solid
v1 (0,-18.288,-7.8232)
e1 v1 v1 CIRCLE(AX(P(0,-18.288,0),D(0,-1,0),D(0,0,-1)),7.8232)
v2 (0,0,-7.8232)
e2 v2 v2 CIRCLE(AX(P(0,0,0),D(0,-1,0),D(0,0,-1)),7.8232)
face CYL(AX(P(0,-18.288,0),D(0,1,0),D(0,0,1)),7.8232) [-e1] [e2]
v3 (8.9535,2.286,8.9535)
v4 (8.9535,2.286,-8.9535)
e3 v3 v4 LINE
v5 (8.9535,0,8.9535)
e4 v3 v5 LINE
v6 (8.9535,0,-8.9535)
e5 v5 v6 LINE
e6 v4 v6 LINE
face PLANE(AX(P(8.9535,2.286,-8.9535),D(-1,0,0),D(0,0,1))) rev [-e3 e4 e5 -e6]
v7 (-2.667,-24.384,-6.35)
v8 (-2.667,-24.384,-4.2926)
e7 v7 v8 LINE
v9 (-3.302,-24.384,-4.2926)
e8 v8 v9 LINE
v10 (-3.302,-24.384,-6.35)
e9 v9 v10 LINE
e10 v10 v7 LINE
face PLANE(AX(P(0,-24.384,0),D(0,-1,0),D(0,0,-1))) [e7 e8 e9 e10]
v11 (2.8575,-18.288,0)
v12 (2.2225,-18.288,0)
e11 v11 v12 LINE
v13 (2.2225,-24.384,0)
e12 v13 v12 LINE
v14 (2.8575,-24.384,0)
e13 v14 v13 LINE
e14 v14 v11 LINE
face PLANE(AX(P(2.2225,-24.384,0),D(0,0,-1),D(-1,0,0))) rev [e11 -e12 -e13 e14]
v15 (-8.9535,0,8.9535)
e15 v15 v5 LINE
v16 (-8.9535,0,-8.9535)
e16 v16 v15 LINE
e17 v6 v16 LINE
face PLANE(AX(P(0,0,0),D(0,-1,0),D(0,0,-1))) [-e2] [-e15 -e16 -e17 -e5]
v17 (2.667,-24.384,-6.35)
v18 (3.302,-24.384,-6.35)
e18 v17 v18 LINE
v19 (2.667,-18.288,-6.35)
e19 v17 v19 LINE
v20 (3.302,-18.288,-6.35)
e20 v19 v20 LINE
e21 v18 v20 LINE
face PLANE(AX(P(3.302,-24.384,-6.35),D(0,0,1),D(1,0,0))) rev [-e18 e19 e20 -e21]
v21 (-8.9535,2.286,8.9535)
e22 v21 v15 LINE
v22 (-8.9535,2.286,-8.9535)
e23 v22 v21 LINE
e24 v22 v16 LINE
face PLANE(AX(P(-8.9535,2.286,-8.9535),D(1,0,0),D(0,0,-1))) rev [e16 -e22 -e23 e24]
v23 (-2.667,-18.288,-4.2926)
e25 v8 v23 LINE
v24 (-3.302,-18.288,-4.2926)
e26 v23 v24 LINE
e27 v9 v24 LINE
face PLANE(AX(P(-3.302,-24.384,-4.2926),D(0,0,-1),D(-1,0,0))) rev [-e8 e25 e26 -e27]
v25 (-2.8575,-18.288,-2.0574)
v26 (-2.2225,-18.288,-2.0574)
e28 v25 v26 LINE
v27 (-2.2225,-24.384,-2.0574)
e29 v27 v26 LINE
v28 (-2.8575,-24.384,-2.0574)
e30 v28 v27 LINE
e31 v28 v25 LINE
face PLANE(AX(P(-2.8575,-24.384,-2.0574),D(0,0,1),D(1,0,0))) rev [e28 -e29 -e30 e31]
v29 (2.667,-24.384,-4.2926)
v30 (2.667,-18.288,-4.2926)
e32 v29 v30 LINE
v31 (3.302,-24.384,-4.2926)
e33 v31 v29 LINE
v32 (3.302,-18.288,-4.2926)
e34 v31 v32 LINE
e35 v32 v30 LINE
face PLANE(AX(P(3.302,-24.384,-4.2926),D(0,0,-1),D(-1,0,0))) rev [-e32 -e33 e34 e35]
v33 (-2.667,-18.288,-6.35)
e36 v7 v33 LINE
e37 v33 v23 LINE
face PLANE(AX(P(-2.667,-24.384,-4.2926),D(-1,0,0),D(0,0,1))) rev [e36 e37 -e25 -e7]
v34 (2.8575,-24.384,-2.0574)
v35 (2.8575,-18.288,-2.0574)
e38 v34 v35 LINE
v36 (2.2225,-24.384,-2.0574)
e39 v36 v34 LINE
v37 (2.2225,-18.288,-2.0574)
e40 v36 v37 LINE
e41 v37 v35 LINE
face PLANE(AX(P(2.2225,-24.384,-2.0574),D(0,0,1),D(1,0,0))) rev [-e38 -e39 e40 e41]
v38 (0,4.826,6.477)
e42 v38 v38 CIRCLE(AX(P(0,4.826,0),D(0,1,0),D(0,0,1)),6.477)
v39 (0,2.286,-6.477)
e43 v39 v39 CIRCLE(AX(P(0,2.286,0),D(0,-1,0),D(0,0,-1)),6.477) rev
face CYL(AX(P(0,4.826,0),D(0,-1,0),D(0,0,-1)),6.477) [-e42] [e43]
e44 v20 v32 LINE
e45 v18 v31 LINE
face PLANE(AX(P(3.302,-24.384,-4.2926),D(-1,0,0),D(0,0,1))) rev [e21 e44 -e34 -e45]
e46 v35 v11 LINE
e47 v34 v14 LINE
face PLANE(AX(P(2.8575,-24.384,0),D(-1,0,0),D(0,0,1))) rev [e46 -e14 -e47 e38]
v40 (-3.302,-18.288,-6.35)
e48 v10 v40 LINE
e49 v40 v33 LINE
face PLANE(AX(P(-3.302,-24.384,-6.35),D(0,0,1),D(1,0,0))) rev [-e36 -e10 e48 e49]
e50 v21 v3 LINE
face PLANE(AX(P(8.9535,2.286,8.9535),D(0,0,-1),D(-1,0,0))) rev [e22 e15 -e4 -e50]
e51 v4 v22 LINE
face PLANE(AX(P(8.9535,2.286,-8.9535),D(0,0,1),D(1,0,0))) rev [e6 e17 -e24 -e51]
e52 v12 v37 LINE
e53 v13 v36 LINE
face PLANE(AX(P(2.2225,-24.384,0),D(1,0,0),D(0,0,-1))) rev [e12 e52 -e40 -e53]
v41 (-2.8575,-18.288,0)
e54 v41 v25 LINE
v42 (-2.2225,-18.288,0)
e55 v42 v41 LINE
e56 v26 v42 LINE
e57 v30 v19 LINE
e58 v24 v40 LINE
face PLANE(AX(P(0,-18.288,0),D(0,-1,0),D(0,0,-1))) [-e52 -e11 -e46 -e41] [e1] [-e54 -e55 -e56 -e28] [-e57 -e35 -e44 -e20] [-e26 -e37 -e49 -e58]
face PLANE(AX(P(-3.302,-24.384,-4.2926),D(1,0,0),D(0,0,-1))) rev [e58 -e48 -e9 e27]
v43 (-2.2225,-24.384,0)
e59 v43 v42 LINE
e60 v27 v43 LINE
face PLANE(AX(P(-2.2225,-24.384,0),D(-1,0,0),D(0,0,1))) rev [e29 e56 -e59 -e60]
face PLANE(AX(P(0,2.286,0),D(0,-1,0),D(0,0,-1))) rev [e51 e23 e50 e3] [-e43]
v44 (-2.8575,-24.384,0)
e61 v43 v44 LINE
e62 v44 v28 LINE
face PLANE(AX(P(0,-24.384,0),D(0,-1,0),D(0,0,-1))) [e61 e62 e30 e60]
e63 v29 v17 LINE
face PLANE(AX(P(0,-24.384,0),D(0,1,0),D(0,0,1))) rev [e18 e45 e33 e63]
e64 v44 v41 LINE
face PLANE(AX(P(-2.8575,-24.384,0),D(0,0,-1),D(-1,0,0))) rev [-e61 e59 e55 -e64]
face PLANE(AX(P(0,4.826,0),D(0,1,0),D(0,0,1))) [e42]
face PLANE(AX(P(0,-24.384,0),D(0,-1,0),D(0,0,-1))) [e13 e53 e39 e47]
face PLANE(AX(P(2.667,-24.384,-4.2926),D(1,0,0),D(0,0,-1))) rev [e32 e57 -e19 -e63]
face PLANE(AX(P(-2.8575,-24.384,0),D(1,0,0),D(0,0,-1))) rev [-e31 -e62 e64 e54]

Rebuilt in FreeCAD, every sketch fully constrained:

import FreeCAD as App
import Part
import Sketcher
from FreeCAD import Vector
Q = App.Units.Quantity

doc = App.newDocument("Part")
body = doc.addObject("PartDesign::Body", "Body")

# Sketch on XZ plane
sketch1 = body.newObject("Sketcher::SketchObject", "Sketch")
sketch1.AttachmentSupport = (doc.getObject("XZ_Plane"), [""])
sketch1.MapMode = "FlatFace"
sketch1.addGeometry([
    Part.LineSegment(Vector(-8.9535, -8.9535, 0), Vector(-8.9535, 8.9535, 0)),
    Part.LineSegment(Vector(-8.9535, 8.9535, 0), Vector(8.9535, 8.9535, 0)),
    Part.LineSegment(Vector(8.9535, 8.9535, 0), Vector(8.9535, -8.9535, 0)),
    Part.LineSegment(Vector(8.9535, -8.9535, 0), Vector(-8.9535, -8.9535, 0)),
], False)
sketch1.addConstraint([
    Sketcher.Constraint("Coincident", 0, 2, 1, 1),
    Sketcher.Constraint("Coincident", 1, 2, 2, 1),
    Sketcher.Constraint("Coincident", 2, 2, 3, 1),
    Sketcher.Constraint("Coincident", 3, 2, 0, 1),
    Sketcher.Constraint("Vertical", 0),
    Sketcher.Constraint("Horizontal", 1),
    Sketcher.Constraint("Vertical", 2),
    Sketcher.Constraint("Horizontal", 3),
    Sketcher.Constraint("Symmetric", 0, 2, 2, 2, -1, 1),
    Sketcher.Constraint("Equal", 3, 0),
    Sketcher.Constraint("DistanceX", 1, 1, 1, 2, Q("0.705 in")),
])
pad1 = body.newObject("PartDesign::Pad", "Pad")
pad1.Profile = sketch1
pad1.Length = Q("0.09 in")
pad1.Reversed = True

# Sketch on XZ plane
sketch2 = body.newObject("Sketcher::SketchObject", "Sketch001")
sketch2.AttachmentSupport = (doc.getObject("XZ_Plane"), [""])
sketch2.MapMode = "FlatFace"
sketch2.AttachmentOffset = App.Placement(Vector(0, 0, -0.09 * 25.4), App.Rotation())
sketch2.addGeometry(Part.Circle(Vector(0, 0, 0), Vector(0, 0, 1), 6.477), False)
sketch2.addConstraint([
    Sketcher.Constraint("Coincident", 0, 3, -1, 1),
    Sketcher.Constraint("Diameter", 0, Q("0.51 in")),
])
pad2 = body.newObject("PartDesign::Pad", "Pad001")
pad2.Profile = sketch2
pad2.Length = Q("0.1 in")
pad2.Reversed = True

# Sketch on XZ plane
sketch3 = body.newObject("Sketcher::SketchObject", "Sketch002")
sketch3.AttachmentSupport = (doc.getObject("XZ_Plane"), [""])
sketch3.MapMode = "FlatFace"
sketch3.addGeometry(Part.Circle(Vector(0, 0, 0), Vector(0, 0, 1), 7.8232), False)
sketch3.addConstraint([
    Sketcher.Constraint("Coincident", 0, 3, -1, 1),
    Sketcher.Constraint("Diameter", 0, Q("0.616 in")),
])
pad3 = body.newObject("PartDesign::Pad", "Pad002")
pad3.Profile = sketch3
pad3.Length = Q("0.72 in")

# Sketch on XZ plane
sketch4 = body.newObject("Sketcher::SketchObject", "Sketch003")
sketch4.AttachmentSupport = (doc.getObject("XZ_Plane"), [""])
sketch4.MapMode = "FlatFace"
sketch4.AttachmentOffset = App.Placement(Vector(0, 0, 0.72 * 25.4), App.Rotation())
sketch4.addGeometry([
    Part.LineSegment(Vector(-2.8575, 0, 0), Vector(-2.8575, -2.0574, 0)),  # 0
    Part.LineSegment(Vector(-2.8575, -2.0574, 0), Vector(-2.2225, -2.0574, 0)),  # 1
    Part.LineSegment(Vector(-2.2225, -2.0574, 0), Vector(-2.2225, 0, 0)),  # 2
    Part.LineSegment(Vector(-2.2225, 0, 0), Vector(-2.8575, 0, 0)),  # 3
    Part.LineSegment(Vector(2.2225, 0, 0), Vector(2.2225, -2.0574, 0)),  # 4
    Part.LineSegment(Vector(2.2225, -2.0574, 0), Vector(2.8575, -2.0574, 0)),  # 5
    Part.LineSegment(Vector(2.8575, -2.0574, 0), Vector(2.8575, 0, 0)),  # 6
    Part.LineSegment(Vector(2.8575, 0, 0), Vector(2.2225, 0, 0)),  # 7
    Part.LineSegment(Vector(-3.302, -4.2926, 0), Vector(-3.302, -6.35, 0)),  # 8
    Part.LineSegment(Vector(-3.302, -6.35, 0), Vector(-2.667, -6.35, 0)),  # 9
    Part.LineSegment(Vector(-2.667, -6.35, 0), Vector(-2.667, -4.2926, 0)),  # 10
    Part.LineSegment(Vector(-2.667, -4.2926, 0), Vector(-3.302, -4.2926, 0)),  # 11
    Part.LineSegment(Vector(2.667, -4.2926, 0), Vector(2.667, -6.35, 0)),  # 12
    Part.LineSegment(Vector(2.667, -6.35, 0), Vector(3.302, -6.35, 0)),  # 13
    Part.LineSegment(Vector(3.302, -6.35, 0), Vector(3.302, -4.2926, 0)),  # 14
    Part.LineSegment(Vector(3.302, -4.2926, 0), Vector(2.667, -4.2926, 0)),  # 15
], False)
sketch4.addConstraint([
    Sketcher.Constraint("Coincident", 0, 2, 1, 1),
    Sketcher.Constraint("Coincident", 1, 2, 2, 1),
    Sketcher.Constraint("Coincident", 2, 2, 3, 1),
    Sketcher.Constraint("Coincident", 3, 2, 0, 1),
    Sketcher.Constraint("Coincident", 4, 2, 5, 1),
    Sketcher.Constraint("Coincident", 5, 2, 6, 1),
    Sketcher.Constraint("Coincident", 6, 2, 7, 1),
    Sketcher.Constraint("Coincident", 7, 2, 4, 1),
    Sketcher.Constraint("Coincident", 8, 2, 9, 1),
    Sketcher.Constraint("Coincident", 9, 2, 10, 1),
    Sketcher.Constraint("Coincident", 10, 2, 11, 1),
    Sketcher.Constraint("Coincident", 11, 2, 8, 1),
    Sketcher.Constraint("Coincident", 12, 2, 13, 1),
    Sketcher.Constraint("Coincident", 13, 2, 14, 1),
    Sketcher.Constraint("Coincident", 14, 2, 15, 1),
    Sketcher.Constraint("Coincident", 15, 2, 12, 1),
    Sketcher.Constraint("Vertical", 0),
    Sketcher.Constraint("Horizontal", 1),
    Sketcher.Constraint("Vertical", 2),
    Sketcher.Constraint("Horizontal", 3),
    Sketcher.Constraint("Vertical", 4),
    Sketcher.Constraint("Horizontal", 5),
    Sketcher.Constraint("Vertical", 6),
    Sketcher.Constraint("Horizontal", 7),
    Sketcher.Constraint("Vertical", 8),
    Sketcher.Constraint("Horizontal", 9),
    Sketcher.Constraint("Vertical", 10),
    Sketcher.Constraint("Horizontal", 11),
    Sketcher.Constraint("Vertical", 12),
    Sketcher.Constraint("Horizontal", 13),
    Sketcher.Constraint("Vertical", 14),
    Sketcher.Constraint("Horizontal", 15),
    Sketcher.Constraint("Symmetric", 3, 2, 6, 2, -1, 1),
    Sketcher.Constraint("Symmetric", 1, 2, 4, 2, -2),
    Sketcher.Constraint("Symmetric", 9, 2, 12, 2, -2),
    Sketcher.Constraint("Symmetric", 11, 2, 14, 2, -2),
    Sketcher.Constraint("PointOnObject", 2, 2, -1),
    Sketcher.Constraint("Equal", 7, 9),
    Sketcher.Constraint("Equal", 6, 8),
    Sketcher.Constraint("DistanceX", 0, 2, 4, 2, Q("0.2 in")),
    Sketcher.Constraint("DistanceX", 1, 1, 1, 2, Q("0.025 in")),
    Sketcher.Constraint("DistanceY", 0, 2, 0, 1, Q("0.081 in")),
    Sketcher.Constraint("DistanceX", 8, 2, -1, 1, Q("0.13 in")),
    Sketcher.Constraint("DistanceY", 8, 2, -1, 1, Q("0.25 in")),
])
pad4 = body.newObject("PartDesign::Pad", "Pad003")
pad4.Profile = sketch4
pad4.Length = Q("0.24 in")

doc.recompute()
